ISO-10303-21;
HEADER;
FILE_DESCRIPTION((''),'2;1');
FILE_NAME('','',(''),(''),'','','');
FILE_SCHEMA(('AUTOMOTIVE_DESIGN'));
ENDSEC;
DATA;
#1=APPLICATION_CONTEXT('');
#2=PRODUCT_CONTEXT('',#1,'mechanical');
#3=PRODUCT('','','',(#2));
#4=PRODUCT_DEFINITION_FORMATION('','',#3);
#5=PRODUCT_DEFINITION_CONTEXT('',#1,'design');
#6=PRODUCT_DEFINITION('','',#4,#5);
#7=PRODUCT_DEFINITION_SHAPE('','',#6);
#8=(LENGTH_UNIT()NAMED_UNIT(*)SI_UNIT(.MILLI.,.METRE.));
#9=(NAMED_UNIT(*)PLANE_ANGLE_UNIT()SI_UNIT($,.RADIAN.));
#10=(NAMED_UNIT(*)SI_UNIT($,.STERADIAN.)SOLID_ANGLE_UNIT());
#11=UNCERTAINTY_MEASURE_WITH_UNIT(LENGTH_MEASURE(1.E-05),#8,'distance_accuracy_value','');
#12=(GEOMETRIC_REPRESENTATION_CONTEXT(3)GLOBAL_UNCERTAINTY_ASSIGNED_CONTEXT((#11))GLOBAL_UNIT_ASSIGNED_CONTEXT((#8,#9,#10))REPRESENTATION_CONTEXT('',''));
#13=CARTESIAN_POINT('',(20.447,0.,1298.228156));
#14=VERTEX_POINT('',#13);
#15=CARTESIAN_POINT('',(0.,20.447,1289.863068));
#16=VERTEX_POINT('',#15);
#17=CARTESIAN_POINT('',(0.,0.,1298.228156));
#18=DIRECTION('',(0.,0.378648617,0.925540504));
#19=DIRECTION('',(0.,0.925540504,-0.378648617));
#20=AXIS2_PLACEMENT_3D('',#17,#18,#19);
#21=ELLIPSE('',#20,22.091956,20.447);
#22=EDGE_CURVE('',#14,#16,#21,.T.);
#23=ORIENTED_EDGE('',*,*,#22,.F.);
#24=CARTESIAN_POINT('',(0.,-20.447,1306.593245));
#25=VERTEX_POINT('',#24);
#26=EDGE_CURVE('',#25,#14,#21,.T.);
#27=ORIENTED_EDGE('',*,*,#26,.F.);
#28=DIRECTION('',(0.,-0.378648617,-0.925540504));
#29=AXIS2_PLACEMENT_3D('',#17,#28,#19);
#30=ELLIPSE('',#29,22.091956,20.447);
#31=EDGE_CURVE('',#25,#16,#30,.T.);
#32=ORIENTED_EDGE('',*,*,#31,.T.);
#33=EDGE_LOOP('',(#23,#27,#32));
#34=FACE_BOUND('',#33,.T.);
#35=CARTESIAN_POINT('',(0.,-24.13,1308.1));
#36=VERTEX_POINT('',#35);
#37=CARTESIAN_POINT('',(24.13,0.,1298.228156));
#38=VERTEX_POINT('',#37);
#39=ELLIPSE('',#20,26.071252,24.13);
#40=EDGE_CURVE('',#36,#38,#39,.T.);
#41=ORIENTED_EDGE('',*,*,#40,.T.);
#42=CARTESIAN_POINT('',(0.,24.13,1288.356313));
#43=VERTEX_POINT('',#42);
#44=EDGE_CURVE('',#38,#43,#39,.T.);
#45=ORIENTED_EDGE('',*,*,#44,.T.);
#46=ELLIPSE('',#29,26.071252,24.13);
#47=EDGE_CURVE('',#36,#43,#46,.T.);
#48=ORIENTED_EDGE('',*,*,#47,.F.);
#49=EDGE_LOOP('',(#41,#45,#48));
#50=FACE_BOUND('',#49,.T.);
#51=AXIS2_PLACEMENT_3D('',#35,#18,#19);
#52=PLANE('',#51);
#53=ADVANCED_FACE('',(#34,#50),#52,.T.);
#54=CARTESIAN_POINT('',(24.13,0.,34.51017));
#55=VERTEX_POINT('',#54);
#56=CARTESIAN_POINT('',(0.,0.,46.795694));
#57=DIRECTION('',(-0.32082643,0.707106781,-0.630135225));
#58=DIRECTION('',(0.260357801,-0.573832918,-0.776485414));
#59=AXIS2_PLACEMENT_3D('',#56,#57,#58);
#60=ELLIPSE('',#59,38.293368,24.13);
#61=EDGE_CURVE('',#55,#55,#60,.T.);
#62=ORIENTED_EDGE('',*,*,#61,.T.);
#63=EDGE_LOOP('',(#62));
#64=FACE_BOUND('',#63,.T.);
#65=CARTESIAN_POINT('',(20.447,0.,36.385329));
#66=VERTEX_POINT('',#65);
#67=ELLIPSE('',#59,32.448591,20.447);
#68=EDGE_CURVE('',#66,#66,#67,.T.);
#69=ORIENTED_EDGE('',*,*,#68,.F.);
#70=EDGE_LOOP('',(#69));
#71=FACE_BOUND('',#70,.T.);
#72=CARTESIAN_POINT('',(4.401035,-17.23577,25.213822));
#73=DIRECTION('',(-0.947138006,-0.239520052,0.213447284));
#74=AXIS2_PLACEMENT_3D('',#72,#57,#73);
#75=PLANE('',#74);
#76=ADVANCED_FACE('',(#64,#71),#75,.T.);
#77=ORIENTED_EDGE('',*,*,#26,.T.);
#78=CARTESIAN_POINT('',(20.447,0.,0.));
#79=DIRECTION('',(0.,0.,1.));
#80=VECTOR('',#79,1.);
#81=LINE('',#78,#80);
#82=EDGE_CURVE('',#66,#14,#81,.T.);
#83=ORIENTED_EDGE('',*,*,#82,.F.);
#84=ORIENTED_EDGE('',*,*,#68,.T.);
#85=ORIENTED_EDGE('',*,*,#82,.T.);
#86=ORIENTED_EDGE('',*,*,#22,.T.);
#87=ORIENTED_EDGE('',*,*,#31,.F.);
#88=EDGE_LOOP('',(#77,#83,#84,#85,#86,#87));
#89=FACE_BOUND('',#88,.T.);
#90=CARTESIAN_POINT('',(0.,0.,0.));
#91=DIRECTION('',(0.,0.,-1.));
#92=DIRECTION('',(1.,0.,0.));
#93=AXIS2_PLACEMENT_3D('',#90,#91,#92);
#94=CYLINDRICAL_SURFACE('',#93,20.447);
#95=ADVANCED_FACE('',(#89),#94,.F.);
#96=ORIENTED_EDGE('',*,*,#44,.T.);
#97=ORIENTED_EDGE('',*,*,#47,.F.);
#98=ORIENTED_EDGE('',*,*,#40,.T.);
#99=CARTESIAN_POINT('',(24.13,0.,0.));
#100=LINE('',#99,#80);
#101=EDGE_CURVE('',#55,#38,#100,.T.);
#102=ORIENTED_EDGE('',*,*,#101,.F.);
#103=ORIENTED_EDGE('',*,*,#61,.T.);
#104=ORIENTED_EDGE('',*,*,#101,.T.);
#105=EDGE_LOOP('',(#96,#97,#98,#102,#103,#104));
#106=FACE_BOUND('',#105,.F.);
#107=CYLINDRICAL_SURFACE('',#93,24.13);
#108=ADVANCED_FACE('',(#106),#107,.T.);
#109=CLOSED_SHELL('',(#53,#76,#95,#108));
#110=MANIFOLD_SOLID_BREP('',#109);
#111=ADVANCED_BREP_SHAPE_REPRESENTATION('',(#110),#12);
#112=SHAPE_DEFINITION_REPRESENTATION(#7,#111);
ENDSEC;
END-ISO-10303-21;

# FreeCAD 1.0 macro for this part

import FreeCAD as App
import Part
import Sketcher
from FreeCAD import Vector
Q = App.Units.Quantity


def add_polygon(sketch, points):
    """Adds a closed chain of lines whose ends are joined by coincident constraints."""
    first, n = sketch.GeometryCount, len(points)
    for a, b in zip(points, points[1:] + points[:1]):
        sketch.addGeometry(Part.LineSegment(App.Vector(*a, 0), App.Vector(*b, 0)), False)
    for i in range(n):
        sketch.addConstraint(Sketcher.Constraint("Coincident", first + i, 2, first + (i + 1) % n, 1))

doc = App.newDocument("Part")
body = doc.addObject("PartDesign::Body", "Body")

sketch1 = body.newObject("Sketcher::SketchObject", "Sketch")
sketch1.AttachmentSupport = (doc.getObject("XY_Plane"), [""])
sketch1.MapMode = "FlatFace"
sketch1.addGeometry([
    Part.Circle(Vector(0, 0, 0), Vector(0, 0, 1), 24.13),
    Part.Circle(Vector(0, 0, 0), Vector(0, 0, 1), 20.447),
], False)
sketch1.addConstraint([
    Sketcher.Constraint("Coincident", 0, 3, -1, 1),
    Sketcher.Constraint("Coincident", 1, 3, -1, 1),
    Sketcher.Constraint("Diameter", 0, Q("1.9 in")),
    Sketcher.Constraint("Diameter", 1, Q("1.61 in")),
])
pad1 = body.newObject("PartDesign::Pad", "Pad")
pad1.Profile = sketch1
pad1.Length = Q("51.5 in")

sketch2 = body.newObject("Sketcher::SketchObject", "Sketch001")
sketch2.AttachmentSupport = (doc.getObject("YZ_Plane"), [""])
sketch2.MapMode = "FlatFace"
add_polygon(sketch2, [(24.13, 1288.356313), (24.13, 1308.1), (-24.13, 1308.1)])
sketch2.addConstraint([
    Sketcher.Constraint("Vertical", 0),
    Sketcher.Constraint("Horizontal", 1),
    Sketcher.Constraint("DistanceX", 1, 2, 1, 1, Q("1.9 in")),
    Sketcher.Constraint("DistanceY", -1, 1, 0, 2, Q("51.5 in")),
    Sketcher.Constraint("DistanceX", -1, 1, 0, 2, Q("0.95 in")),
    Sketcher.Constraint("Angle", 2, Q("-22.25 deg")),
])
pocket1 = body.newObject("PartDesign::Pocket", "Pocket")
pocket1.Profile = sketch2
pocket1.Type = "ThroughAll"
pocket1.Midplane = True

sketch3 = body.newObject("Sketcher::SketchObject", "Sketch002")
sketch3.AttachmentSupport = (doc.getObject("XZ_Plane"), [""])
sketch3.MapMode = "FlatFace"
add_polygon(sketch3, [(-28.575, 0), (28.575, 0), (-28.575, 29.097295)])
sketch3.addConstraint([
    Sketcher.Constraint("Horizontal", 0),
    Sketcher.Constraint("Vertical", 2),
    Sketcher.Constraint("Symmetric", 0, 2, 2, 2, -1, 1),
    Sketcher.Constraint("DistanceX", 0, 1, 0, 2, Q("2.25 in")),
    Sketcher.Constraint("Distance", 1, Q("64.130921 mm")),
])
pocket2 = body.newObject("PartDesign::Pocket", "Pocket001")
pocket2.Profile = sketch3
pocket2.Type = "ThroughAll"
pocket2.Midplane = True

sketch4 = body.newObject("Sketcher::SketchObject", "Sketch003")
sketch4.Placement = App.Placement(Vector(2.941213, -6.482483, 5.776837), App.Rotation(Vector(-0.947138006, -0.239520052, 0.213447284), Vector(0, 0.665304551, 0.74657207), Vector(-0.32082643, 0.707106781, -0.630135225), "ZXY"))
add_polygon(sketch4, [(-83.867848, 91.052905), (-83.867848, -76.339107), (94.551341, -76.339107), (94.551341, 91.052905)])
sketch4.addConstraint([
    Sketcher.Constraint("Vertical", 0),
    Sketcher.Constraint("Horizontal", 1),
    Sketcher.Constraint("Vertical", 2),
    Sketcher.Constraint("Horizontal", 3),
    Sketcher.Constraint("DistanceX", 1, 1, 1, 2, Q("178.419189 mm")),
    Sketcher.Constraint("DistanceY", 0, 2, 0, 1, Q("167.392012 mm")),
    Sketcher.Constraint("DistanceX", -1, 1, 1, 2, Q("94.551341 mm")),
    Sketcher.Constraint("DistanceY", 0, 2, -1, 1, Q("76.339107 mm")),
])
pocket3 = body.newObject("PartDesign::Pocket", "Pocket002")
pocket3.Profile = sketch4
pocket3.Type = "TwoLengths"
pocket3.Length = Q("2 in")
pocket3.Length2 = Q("0.8 in")
pocket3.Reversed = True

doc.recompute()
